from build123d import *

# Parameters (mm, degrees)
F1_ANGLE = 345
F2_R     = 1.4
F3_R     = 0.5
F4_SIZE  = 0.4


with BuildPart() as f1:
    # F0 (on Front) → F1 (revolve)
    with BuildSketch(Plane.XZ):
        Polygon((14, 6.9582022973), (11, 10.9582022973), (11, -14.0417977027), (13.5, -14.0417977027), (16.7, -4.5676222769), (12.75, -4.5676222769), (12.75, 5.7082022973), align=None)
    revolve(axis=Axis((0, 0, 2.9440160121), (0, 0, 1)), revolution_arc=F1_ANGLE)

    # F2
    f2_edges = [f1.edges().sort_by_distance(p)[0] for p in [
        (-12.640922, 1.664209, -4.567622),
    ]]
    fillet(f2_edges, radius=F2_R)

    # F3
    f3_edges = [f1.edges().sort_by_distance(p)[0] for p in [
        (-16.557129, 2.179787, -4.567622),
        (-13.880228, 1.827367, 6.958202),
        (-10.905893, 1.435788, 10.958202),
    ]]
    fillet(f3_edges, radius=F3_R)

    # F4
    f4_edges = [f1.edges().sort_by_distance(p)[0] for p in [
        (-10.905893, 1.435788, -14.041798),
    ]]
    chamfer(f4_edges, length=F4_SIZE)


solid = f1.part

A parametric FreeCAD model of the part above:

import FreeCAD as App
import Part
import Sketcher
from FreeCAD import Vector
Q = App.Units.Quantity


def edges_at(feature, points):
    """Names of the edges that pass closest to the given points."""
    edges = feature.Shape.Edges
    near = lambda p: min(range(len(edges)), key=lambda i: edges[i].distToShape(Part.Vertex(*p))[0])
    return sorted({f"Edge{near(p) + 1}" for p in points})


def add_polygon(sketch, points):
    """Adds a closed chain of lines whose ends are joined by coincident constraints."""
    first, n = sketch.GeometryCount, len(points)
    for a, b in zip(points, points[1:] + points[:1]):
        sketch.addGeometry(Part.LineSegment(App.Vector(*a, 0), App.Vector(*b, 0)), False)
    for i in range(n):
        sketch.addConstraint(Sketcher.Constraint("Coincident", first + i, 2, first + (i + 1) % n, 1))

doc = App.newDocument("Part")
body = doc.addObject("PartDesign::Body", "Body")

# Sketch on XZ plane
sketch1 = body.newObject("Sketcher::SketchObject", "Sketch")
sketch1.AttachmentSupport = (doc.getObject("XZ_Plane"), [""])
sketch1.MapMode = "FlatFace"
add_polygon(sketch1, [(14, 7), (11, 11), (11, -14), (13.5, -14), (16.7, -4.6), (12.8, -4.6), (12.8, 5.7)])  # lines 0-6
sketch1.addConstraint([
    Sketcher.Constraint("Vertical", 1),
    Sketcher.Constraint("Horizontal", 2),
    Sketcher.Constraint("Horizontal", 4),
    Sketcher.Constraint("Vertical", 5),
    Sketcher.Constraint("DistanceY", 1, 2, 1, 1, Q("25 mm")),
    Sketcher.Constraint("Angle", 6, Q("45 deg")),
    Sketcher.Constraint("Distance", 0, Q("5 mm")),
    Sketcher.Constraint("Distance", 3, Q("10 mm")),
    Sketcher.Constraint("DistanceX", 2, 1, 2, 2, Q("2.5 mm")),
    Sketcher.Constraint("DistanceX", -1, 1, 0, 2, Q("11 mm")),
    Sketcher.Constraint("DistanceX", -1, 1, 6, 2, Q("14 mm")),
    Sketcher.Constraint("DistanceX", 4, 2, 4, 1, Q("3.95 mm")),
    Sketcher.Constraint("DistanceX", -1, 1, 3, 2, Q("16.7 mm")),
    Sketcher.Constraint("DistanceY", -1, 1, 0, 2, Q("10.958202 mm")),
])
revolution = body.newObject("PartDesign::Revolution", "Revolution")
revolution.Profile = sketch1
revolution.ReferenceAxis = (sketch1, ["V_Axis"])
revolution.Angle = 345
doc.recompute()

fillet = body.newObject("PartDesign::Fillet", "Fillet")
fillet.Base = (revolution, edges_at(revolution, [(-12.641, 1.664, -4.568)]))
fillet.Radius = 1.4
doc.recompute()

fillet2 = body.newObject("PartDesign::Fillet", "Fillet001")
fillet2.Base = (fillet, edges_at(fillet, [(-16.557, 2.18, -4.568), (-13.88, 1.827, 6.958), (-10.906, 1.436, 10.958)]))
fillet2.Radius = 0.5
doc.recompute()

chamfer = body.newObject("PartDesign::Chamfer", "Chamfer")
chamfer.Base = (fillet2, edges_at(fillet2, [(-10.906, 1.436, -14.042)]))
chamfer.Size = 0.4

doc.recompute()
